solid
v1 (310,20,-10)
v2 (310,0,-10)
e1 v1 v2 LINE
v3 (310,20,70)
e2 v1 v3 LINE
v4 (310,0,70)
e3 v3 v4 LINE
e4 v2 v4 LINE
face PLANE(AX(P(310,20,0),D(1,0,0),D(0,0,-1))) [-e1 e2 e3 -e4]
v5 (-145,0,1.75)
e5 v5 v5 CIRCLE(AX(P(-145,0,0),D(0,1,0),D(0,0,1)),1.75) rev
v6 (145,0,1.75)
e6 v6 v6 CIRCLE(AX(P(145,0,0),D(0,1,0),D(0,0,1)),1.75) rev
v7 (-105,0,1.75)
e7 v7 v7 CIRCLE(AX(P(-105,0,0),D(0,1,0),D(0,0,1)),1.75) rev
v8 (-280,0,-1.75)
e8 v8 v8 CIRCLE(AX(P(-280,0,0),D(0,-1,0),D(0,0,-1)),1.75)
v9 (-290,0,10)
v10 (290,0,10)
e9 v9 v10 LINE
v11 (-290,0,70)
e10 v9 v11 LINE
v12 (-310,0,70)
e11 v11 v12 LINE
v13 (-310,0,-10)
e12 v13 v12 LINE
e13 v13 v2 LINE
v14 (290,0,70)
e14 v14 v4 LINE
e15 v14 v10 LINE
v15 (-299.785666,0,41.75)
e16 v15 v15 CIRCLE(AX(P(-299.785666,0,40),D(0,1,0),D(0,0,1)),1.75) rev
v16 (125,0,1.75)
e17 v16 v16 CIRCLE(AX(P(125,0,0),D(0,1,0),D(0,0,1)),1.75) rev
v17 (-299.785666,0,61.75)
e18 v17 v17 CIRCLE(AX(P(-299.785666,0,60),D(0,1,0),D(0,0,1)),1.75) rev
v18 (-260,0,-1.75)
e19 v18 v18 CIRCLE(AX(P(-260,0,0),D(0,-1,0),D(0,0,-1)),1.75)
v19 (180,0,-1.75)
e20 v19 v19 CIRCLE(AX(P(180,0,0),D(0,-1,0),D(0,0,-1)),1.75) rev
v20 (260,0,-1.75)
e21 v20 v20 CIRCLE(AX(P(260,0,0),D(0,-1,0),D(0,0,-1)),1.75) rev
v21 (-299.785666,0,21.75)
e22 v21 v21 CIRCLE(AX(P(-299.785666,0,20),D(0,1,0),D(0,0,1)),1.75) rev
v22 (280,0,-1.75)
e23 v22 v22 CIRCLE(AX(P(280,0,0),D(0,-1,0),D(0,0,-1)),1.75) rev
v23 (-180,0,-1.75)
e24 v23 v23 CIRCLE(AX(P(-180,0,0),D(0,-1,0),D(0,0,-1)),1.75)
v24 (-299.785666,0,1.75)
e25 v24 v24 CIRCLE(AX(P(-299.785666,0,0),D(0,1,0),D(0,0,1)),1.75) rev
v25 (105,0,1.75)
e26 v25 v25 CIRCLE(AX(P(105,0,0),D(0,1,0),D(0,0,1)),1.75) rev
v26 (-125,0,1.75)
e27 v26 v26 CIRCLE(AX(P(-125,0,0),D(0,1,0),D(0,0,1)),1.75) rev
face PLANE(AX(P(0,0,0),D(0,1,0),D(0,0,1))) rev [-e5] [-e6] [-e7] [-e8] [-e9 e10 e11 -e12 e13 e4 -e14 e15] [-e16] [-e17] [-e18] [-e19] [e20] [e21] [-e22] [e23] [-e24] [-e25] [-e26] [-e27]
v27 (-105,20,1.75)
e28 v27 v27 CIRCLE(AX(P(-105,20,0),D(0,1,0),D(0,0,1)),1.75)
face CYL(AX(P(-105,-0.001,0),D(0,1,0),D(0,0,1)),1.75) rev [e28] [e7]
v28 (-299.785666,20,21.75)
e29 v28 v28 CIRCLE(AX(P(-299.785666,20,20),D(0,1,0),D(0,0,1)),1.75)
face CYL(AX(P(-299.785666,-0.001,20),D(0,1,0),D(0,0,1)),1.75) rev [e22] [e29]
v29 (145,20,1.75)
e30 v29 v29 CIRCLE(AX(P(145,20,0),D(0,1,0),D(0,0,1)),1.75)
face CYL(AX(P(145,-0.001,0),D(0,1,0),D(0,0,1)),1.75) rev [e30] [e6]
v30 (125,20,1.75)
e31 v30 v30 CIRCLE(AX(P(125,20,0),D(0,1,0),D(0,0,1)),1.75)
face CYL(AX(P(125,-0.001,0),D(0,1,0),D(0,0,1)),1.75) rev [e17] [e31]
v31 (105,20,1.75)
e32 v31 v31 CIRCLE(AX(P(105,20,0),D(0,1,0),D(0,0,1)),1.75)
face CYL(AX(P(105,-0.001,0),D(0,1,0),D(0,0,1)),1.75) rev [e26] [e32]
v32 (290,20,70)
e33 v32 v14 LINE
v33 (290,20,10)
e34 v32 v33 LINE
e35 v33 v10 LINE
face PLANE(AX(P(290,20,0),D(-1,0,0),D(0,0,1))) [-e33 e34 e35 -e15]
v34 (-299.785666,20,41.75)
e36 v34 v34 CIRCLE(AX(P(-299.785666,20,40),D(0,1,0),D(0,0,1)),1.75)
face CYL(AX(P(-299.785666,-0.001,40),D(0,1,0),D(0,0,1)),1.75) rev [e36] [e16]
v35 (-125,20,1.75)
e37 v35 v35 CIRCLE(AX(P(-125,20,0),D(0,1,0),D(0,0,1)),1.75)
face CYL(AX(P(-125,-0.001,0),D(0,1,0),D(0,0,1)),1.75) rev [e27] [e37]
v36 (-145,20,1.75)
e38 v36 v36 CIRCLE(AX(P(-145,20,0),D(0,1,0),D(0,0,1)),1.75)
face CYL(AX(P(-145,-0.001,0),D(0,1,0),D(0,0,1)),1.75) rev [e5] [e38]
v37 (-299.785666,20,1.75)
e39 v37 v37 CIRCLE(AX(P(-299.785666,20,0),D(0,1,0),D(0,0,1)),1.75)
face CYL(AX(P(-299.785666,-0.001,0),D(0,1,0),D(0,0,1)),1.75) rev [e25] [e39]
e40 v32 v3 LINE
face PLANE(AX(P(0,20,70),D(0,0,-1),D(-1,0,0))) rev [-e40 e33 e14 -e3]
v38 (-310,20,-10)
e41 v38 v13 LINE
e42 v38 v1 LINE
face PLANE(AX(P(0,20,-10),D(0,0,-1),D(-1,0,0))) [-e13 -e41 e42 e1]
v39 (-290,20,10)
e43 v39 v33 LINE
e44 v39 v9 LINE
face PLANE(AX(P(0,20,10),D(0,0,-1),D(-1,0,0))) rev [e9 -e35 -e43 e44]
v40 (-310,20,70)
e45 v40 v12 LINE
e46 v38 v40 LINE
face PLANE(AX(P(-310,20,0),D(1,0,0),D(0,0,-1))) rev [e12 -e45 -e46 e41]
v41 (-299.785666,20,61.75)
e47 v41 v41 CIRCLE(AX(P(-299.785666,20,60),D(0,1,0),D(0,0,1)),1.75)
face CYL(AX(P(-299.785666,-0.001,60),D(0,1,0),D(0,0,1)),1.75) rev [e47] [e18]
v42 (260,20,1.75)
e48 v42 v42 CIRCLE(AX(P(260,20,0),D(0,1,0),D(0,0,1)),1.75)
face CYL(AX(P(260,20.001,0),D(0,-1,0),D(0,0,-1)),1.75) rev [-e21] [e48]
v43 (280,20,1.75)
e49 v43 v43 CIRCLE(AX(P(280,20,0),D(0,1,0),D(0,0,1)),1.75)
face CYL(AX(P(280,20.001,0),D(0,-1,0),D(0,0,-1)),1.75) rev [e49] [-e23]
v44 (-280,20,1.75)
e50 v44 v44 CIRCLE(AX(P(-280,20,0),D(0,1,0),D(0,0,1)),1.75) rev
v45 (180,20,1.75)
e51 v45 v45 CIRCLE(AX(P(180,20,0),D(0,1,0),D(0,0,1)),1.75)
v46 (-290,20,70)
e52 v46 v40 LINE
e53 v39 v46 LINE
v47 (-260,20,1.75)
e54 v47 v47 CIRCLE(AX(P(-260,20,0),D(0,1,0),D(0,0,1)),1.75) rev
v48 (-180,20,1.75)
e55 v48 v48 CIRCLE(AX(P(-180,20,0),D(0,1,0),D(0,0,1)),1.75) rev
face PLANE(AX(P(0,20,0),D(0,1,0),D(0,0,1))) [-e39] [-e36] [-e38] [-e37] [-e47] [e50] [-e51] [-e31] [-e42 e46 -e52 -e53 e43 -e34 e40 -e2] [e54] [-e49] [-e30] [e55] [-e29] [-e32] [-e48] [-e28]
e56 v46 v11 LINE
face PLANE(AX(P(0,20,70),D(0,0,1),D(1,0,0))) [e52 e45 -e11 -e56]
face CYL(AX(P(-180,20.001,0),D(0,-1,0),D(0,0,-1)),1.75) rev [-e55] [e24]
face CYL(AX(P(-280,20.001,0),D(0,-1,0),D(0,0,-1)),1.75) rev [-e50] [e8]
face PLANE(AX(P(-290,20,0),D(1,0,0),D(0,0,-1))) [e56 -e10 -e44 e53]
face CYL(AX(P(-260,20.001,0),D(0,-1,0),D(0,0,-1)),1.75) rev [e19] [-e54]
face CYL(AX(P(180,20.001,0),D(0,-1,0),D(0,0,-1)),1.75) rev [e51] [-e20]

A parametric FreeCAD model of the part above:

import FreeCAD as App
import Part
import Sketcher
Q = App.Units.Quantity

doc = App.newDocument("Part")
params = doc.addObject("Spreadsheet::Sheet", "Params")
for row, (alias, value) in enumerate([
    ("sketch1_width", "580 mm"),
    ("sketch1_width2", "20 mm"),
    ("sketch1_height", "60 mm"),
    ("sketch1_height2", "80 mm"),
    ("pad1_length", "20 mm"),
    ("sketch2_diameter", "3.5 mm"),
    ("sketch3_diameter", "3.5 mm"),
    ("sketch4_diameter", "3.5 mm"),
    ("sketch5_diameter", "3.5 mm"),
    ("sketch6_diameter", "3.5 mm"),
    ("sketch7_diameter", "3.5 mm"),
    ("sketch8_diameter", "3.5 mm"),
    ("sketch9_diameter", "3.5 mm"),
    ("sketch10_diameter", "3.5 mm"),
    ("sketch11_diameter", "3.5 mm"),
    ("sketch12_diameter", "3.5 mm"),
    ("sketch13_diameter", "3.5 mm"),
    ("sketch14_diameter", "3.5 mm"),
    ("sketch15_diameter", "3.5 mm"),
    ("sketch16_diameter", "3.5 mm"),
    ("sketch17_diameter", "3.5 mm"),
], start=1):
    params.set(f"A{row}", alias)
    params.set(f"B{row}", "=" + value)
    params.setAlias(f"B{row}", alias)

body = doc.addObject("PartDesign::Body", "Body")

# Sketch on XZ plane
sketch1 = body.newObject("Sketcher::SketchObject", "Sketch")
sketch1.AttachmentSupport = (doc.getObject("XZ_Plane"), [""])
sketch1.MapMode = "FlatFace"
sketch1.addGeometry(Part.LineSegment(App.Vector(-290, 10, 0), App.Vector(290, 10, 0)), False)
sketch1.addGeometry(Part.LineSegment(App.Vector(290, 10, 0), App.Vector(290, 70, 0)), False)
sketch1.addGeometry(Part.LineSegment(App.Vector(290, 70, 0), App.Vector(310, 70, 0)), False)
sketch1.addGeometry(Part.LineSegment(App.Vector(310, 70, 0), App.Vector(310, -10, 0)), False)
sketch1.addGeometry(Part.LineSegment(App.Vector(310, -10, 0), App.Vector(-310, -10, 0)), False)
sketch1.addGeometry(Part.LineSegment(App.Vector(-310, -10, 0), App.Vector(-310, 70, 0)), False)
sketch1.addGeometry(Part.LineSegment(App.Vector(-310, 70, 0), App.Vector(-290, 70, 0)), False)
sketch1.addGeometry(Part.LineSegment(App.Vector(-290, 70, 0), App.Vector(-290, 10, 0)), False)
sketch1.addConstraint(Sketcher.Constraint("Coincident", 0, 2, 1, 1))
sketch1.addConstraint(Sketcher.Constraint("Coincident", 1, 2, 2, 1))
sketch1.addConstraint(Sketcher.Constraint("Coincident", 2, 2, 3, 1))
sketch1.addConstraint(Sketcher.Constraint("Coincident", 3, 2, 4, 1))
sketch1.addConstraint(Sketcher.Constraint("Coincident", 4, 2, 5, 1))
sketch1.addConstraint(Sketcher.Constraint("Coincident", 5, 2, 6, 1))
sketch1.addConstraint(Sketcher.Constraint("Coincident", 6, 2, 7, 1))
sketch1.addConstraint(Sketcher.Constraint("Coincident", 7, 2, 0, 1))
sketch1.addConstraint(Sketcher.Constraint("Horizontal", 0))
sketch1.addConstraint(Sketcher.Constraint("Vertical", 1))
sketch1.addConstraint(Sketcher.Constraint("Horizontal", 2))
sketch1.addConstraint(Sketcher.Constraint("Vertical", 3))
sketch1.addConstraint(Sketcher.Constraint("Horizontal", 4))
sketch1.addConstraint(Sketcher.Constraint("Vertical", 5))
sketch1.addConstraint(Sketcher.Constraint("Horizontal", 6))
sketch1.addConstraint(Sketcher.Constraint("Vertical", 7))
sketch1.addConstraint(Sketcher.Constraint("Symmetric", 2, 2, 5, 2, -2))
sketch1.addConstraint(Sketcher.Constraint("Equal", 2, 6))
sketch1.addConstraint(Sketcher.Constraint("DistanceX", 0, 1, 0, 2, Q("580 mm")))
sketch1.addConstraint(Sketcher.Constraint("DistanceX", 2, 1, 2, 2, Q("20 mm")))
sketch1.addConstraint(Sketcher.Constraint("DistanceY", 1, 1, 1, 2, Q("60 mm")))
sketch1.addConstraint(Sketcher.Constraint("DistanceY", 3, 2, 3, 1, Q("80 mm")))
sketch1.addConstraint(Sketcher.Constraint("DistanceY", -1, 1, 0, 2, Q("10 mm")))
sketch1.setExpression("Constraints[18]", "Params.sketch1_width")
sketch1.setExpression("Constraints[19]", "Params.sketch1_width2")
sketch1.setExpression("Constraints[20]", "Params.sketch1_height")
sketch1.setExpression("Constraints[21]", "Params.sketch1_height2")
pad1 = body.newObject("PartDesign::Pad", "Pad")
pad1.Profile = sketch1
pad1.setExpression("Length", "Params.pad1_length")
pad1.Reversed = True

# Sketch on XZ plane
sketch2 = body.newObject("Sketcher::SketchObject", "Sketch001")
sketch2.AttachmentSupport = (doc.getObject("XZ_Plane"), [""])
sketch2.MapMode = "FlatFace"
sketch2.AttachmentOffset = App.Placement(App.Vector(0, 0, -20), App.Rotation())
sketch2.addGeometry(Part.Circle(App.Vector(-299.785666, 40, 0), App.Vector(0, 0, 1), 1.75), False)
sketch2.addConstraint(Sketcher.Constraint("Diameter", 0, Q("3.5 mm")))
sketch2.addConstraint(Sketcher.Constraint("DistanceY", -1, 1, 0, 3, Q("40 mm")))
sketch2.addConstraint(Sketcher.Constraint("DistanceX", 0, 3, -1, 1, Q("299.785666 mm")))
sketch2.setExpression("Constraints[0]", "Params.sketch2_diameter")
pocket1 = body.newObject("PartDesign::Pocket", "Pocket")
pocket1.Profile = sketch2
pocket1.Type = "UpToFirst"
pocket1.Reversed = True

# Sketch on XZ plane
sketch3 = body.newObject("Sketcher::SketchObject", "Sketch002")
sketch3.AttachmentSupport = (doc.getObject("XZ_Plane"), [""])
sketch3.MapMode = "FlatFace"
sketch3.AttachmentOffset = App.Placement(App.Vector(0, 0, -20), App.Rotation())
sketch3.addGeometry(Part.Circle(App.Vector(-299.785666, 60, 0), App.Vector(0, 0, 1), 1.75), False)
sketch3.addConstraint(Sketcher.Constraint("Diameter", 0, Q("3.5 mm")))
sketch3.addConstraint(Sketcher.Constraint("DistanceY", -1, 1, 0, 3, Q("60 mm")))
sketch3.addConstraint(Sketcher.Constraint("DistanceX", 0, 3, -1, 1, Q("299.785666 mm")))
sketch3.setExpression("Constraints[0]", "Params.sketch3_diameter")
pocket2 = body.newObject("PartDesign::Pocket", "Pocket001")
pocket2.Profile = sketch3
pocket2.Type = "UpToFirst"
pocket2.Reversed = True

# Sketch on XZ plane
sketch4 = body.newObject("Sketcher::SketchObject", "Sketch003")
sketch4.AttachmentSupport = (doc.getObject("XZ_Plane"), [""])
sketch4.MapMode = "FlatFace"
sketch4.AttachmentOffset = App.Placement(App.Vector(0, 0, -20), App.Rotation())
sketch4.addGeometry(Part.Circle(App.Vector(-299.785666, 20, 0), App.Vector(0, 0, 1), 1.75), False)
sketch4.addConstraint(Sketcher.Constraint("Diameter", 0, Q("3.5 mm")))
sketch4.addConstraint(Sketcher.Constraint("DistanceY", -1, 1, 0, 3, Q("20 mm")))
sketch4.addConstraint(Sketcher.Constraint("DistanceX", 0, 3, -1, 1, Q("299.785666 mm")))
sketch4.setExpression("Constraints[0]", "Params.sketch4_diameter")
pocket3 = body.newObject("PartDesign::Pocket", "Pocket002")
pocket3.Profile = sketch4
pocket3.Type = "UpToFirst"
pocket3.Reversed = True

# Sketch on XZ plane
sketch5 = body.newObject("Sketcher::SketchObject", "Sketch004")
sketch5.AttachmentSupport = (doc.getObject("XZ_Plane"), [""])
sketch5.MapMode = "FlatFace"
sketch5.AttachmentOffset = App.Placement(App.Vector(0, 0, -20), App.Rotation())
sketch5.addGeometry(Part.Circle(App.Vector(-299.785666, 0, 0), App.Vector(0, 0, 1), 1.75), False)
sketch5.addConstraint(Sketcher.Constraint("PointOnObject", 0, 3, -1))
sketch5.addConstraint(Sketcher.Constraint("Diameter", 0, Q("3.5 mm")))
sketch5.addConstraint(Sketcher.Constraint("DistanceX", 0, 3, -1, 1, Q("299.785666 mm")))
sketch5.setExpression("Constraints[1]", "Params.sketch5_diameter")
pocket4 = body.newObject("PartDesign::Pocket", "Pocket003")
pocket4.Profile = sketch5
pocket4.Type = "UpToFirst"
pocket4.Reversed = True

# Sketch on XZ plane
sketch6 = body.newObject("Sketcher::SketchObject", "Sketch005")
sketch6.AttachmentSupport = (doc.getObject("XZ_Plane"), [""])
sketch6.MapMode = "FlatFace"
sketch6.AttachmentOffset = App.Placement(App.Vector(0, 0, -20), App.Rotation())
sketch6.addGeometry(Part.Circle(App.Vector(-125, 0, 0), App.Vector(0, 0, 1), 1.75), False)
sketch6.addConstraint(Sketcher.Constraint("PointOnObject", 0, 3, -1))
sketch6.addConstraint(Sketcher.Constraint("Diameter", 0, Q("3.5 mm")))
sketch6.addConstraint(Sketcher.Constraint("DistanceX", 0, 3, -1, 1, Q("125 mm")))
sketch6.setExpression("Constraints[1]", "Params.sketch6_diameter")
pocket5 = body.newObject("PartDesign::Pocket", "Pocket004")
pocket5.Profile = sketch6
pocket5.Type = "UpToFirst"
pocket5.Reversed = True

# Sketch on XZ plane
sketch7 = body.newObject("Sketcher::SketchObject", "Sketch006")
sketch7.AttachmentSupport = (doc.getObject("XZ_Plane"), [""])
sketch7.MapMode = "FlatFace"
sketch7.AttachmentOffset = App.Placement(App.Vector(0, 0, -20), App.Rotation())
sketch7.addGeometry(Part.Circle(App.Vector(-105, 0, 0), App.Vector(0, 0, 1), 1.75), False)
sketch7.addConstraint(Sketcher.Constraint("PointOnObject", 0, 3, -1))
sketch7.addConstraint(Sketcher.Constraint("Diameter", 0, Q("3.5 mm")))
sketch7.addConstraint(Sketcher.Constraint("DistanceX", 0, 3, -1, 1, Q("105 mm")))
sketch7.setExpression("Constraints[1]", "Params.sketch7_diameter")
pocket6 = body.newObject("PartDesign::Pocket", "Pocket005")
pocket6.Profile = sketch7
pocket6.Type = "UpToFirst"
pocket6.Reversed = True

# Sketch on XZ plane
sketch8 = body.newObject("Sketcher::SketchObject", "Sketch007")
sketch8.AttachmentSupport = (doc.getObject("XZ_Plane"), [""])
sketch8.MapMode = "FlatFace"
sketch8.AttachmentOffset = App.Placement(App.Vector(0, 0, -20), App.Rotation())
sketch8.addGeometry(Part.Circle(App.Vector(-145, 0, 0), App.Vector(0, 0, 1), 1.75), False)
sketch8.addConstraint(Sketcher.Constraint("PointOnObject", 0, 3, -1))
sketch8.addConstraint(Sketcher.Constraint("Diameter", 0, Q("3.5 mm")))
sketch8.addConstraint(Sketcher.Constraint("DistanceX", 0, 3, -1, 1, Q("145 mm")))
sketch8.setExpression("Constraints[1]", "Params.sketch8_diameter")
pocket7 = body.newObject("PartDesign::Pocket", "Pocket006")
pocket7.Profile = sketch8
pocket7.Type = "UpToFirst"
pocket7.Reversed = True

# Sketch on XZ plane
sketch9 = body.newObject("Sketcher::SketchObject", "Sketch008")
sketch9.AttachmentSupport = (doc.getObject("XZ_Plane"), [""])
sketch9.MapMode = "FlatFace"
sketch9.AttachmentOffset = App.Placement(App.Vector(0, 0, -20), App.Rotation())
sketch9.addGeometry(Part.Circle(App.Vector(105, 0, 0), App.Vector(0, 0, 1), 1.75), False)
sketch9.addConstraint(Sketcher.Constraint("PointOnObject", 0, 3, -1))
sketch9.addConstraint(Sketcher.Constraint("Diameter", 0, Q("3.5 mm")))
sketch9.addConstraint(Sketcher.Constraint("DistanceX", -1, 1, 0, 3, Q("105 mm")))
sketch9.setExpression("Constraints[1]", "Params.sketch9_diameter")
pocket8 = body.newObject("PartDesign::Pocket", "Pocket007")
pocket8.Profile = sketch9
pocket8.Type = "UpToFirst"
pocket8.Reversed = True

# Sketch on XZ plane
sketch10 = body.newObject("Sketcher::SketchObject", "Sketch009")
sketch10.AttachmentSupport = (doc.getObject("XZ_Plane"), [""])
sketch10.MapMode = "FlatFace"
sketch10.AttachmentOffset = App.Placement(App.Vector(0, 0, -20), App.Rotation())
sketch10.addGeometry(Part.Circle(App.Vector(125, 0, 0), App.Vector(0, 0, 1), 1.75), False)
sketch10.addConstraint(Sketcher.Constraint("PointOnObject", 0, 3, -1))
sketch10.addConstraint(Sketcher.Constraint("Diameter", 0, Q("3.5 mm")))
sketch10.addConstraint(Sketcher.Constraint("DistanceX", -1, 1, 0, 3, Q("125 mm")))
sketch10.setExpression("Constraints[1]", "Params.sketch10_diameter")
pocket9 = body.newObject("PartDesign::Pocket", "Pocket008")
pocket9.Profile = sketch10
pocket9.Type = "UpToFirst"
pocket9.Reversed = True

# Sketch on XZ plane
sketch11 = body.newObject("Sketcher::SketchObject", "Sketch010")
sketch11.AttachmentSupport = (doc.getObject("XZ_Plane"), [""])
sketch11.MapMode = "FlatFace"
sketch11.AttachmentOffset = App.Placement(App.Vector(0, 0, -20), App.Rotation())
sketch11.addGeometry(Part.Circle(App.Vector(145, 0, 0), App.Vector(0, 0, 1), 1.75), False)
sketch11.addConstraint(Sketcher.Constraint("PointOnObject", 0, 3, -1))
sketch11.addConstraint(Sketcher.Constraint("Diameter", 0, Q("3.5 mm")))
sketch11.addConstraint(Sketcher.Constraint("DistanceX", -1, 1, 0, 3, Q("145 mm")))
sketch11.setExpression("Constraints[1]", "Params.sketch11_diameter")
pocket10 = body.newObject("PartDesign::Pocket", "Pocket009")
pocket10.Profile = sketch11
pocket10.Type = "UpToFirst"
pocket10.Reversed = True

# Sketch on XZ plane
sketch12 = body.newObject("Sketcher::SketchObject", "Sketch011")
sketch12.AttachmentSupport = (doc.getObject("XZ_Plane"), [""])
sketch12.MapMode = "FlatFace"
sketch12.addGeometry(Part.Circle(App.Vector(180, 0, 0), App.Vector(0, 0, 1), 1.75), False)
sketch12.addConstraint(Sketcher.Constraint("PointOnObject", 0, 3, -1))
sketch12.addConstraint(Sketcher.Constraint("Diameter", 0, Q("3.5 mm")))
sketch12.addConstraint(Sketcher.Constraint("DistanceX", -1, 1, 0, 3, Q("180 mm")))
sketch12.setExpression("Constraints[1]", "Params.sketch12_diameter")
pocket11 = body.newObject("PartDesign::Pocket", "Pocket010")
pocket11.Profile = sketch12
pocket11.Type = "UpToFirst"

# Sketch on XZ plane
sketch13 = body.newObject("Sketcher::SketchObject", "Sketch012")
sketch13.AttachmentSupport = (doc.getObject("XZ_Plane"), [""])
sketch13.MapMode = "FlatFace"
sketch13.addGeometry(Part.Circle(App.Vector(280, 0, 0), App.Vector(0, 0, 1), 1.75), False)
sketch13.addConstraint(Sketcher.Constraint("PointOnObject", 0, 3, -1))
sketch13.addConstraint(Sketcher.Constraint("Diameter", 0, Q("3.5 mm")))
sketch13.addConstraint(Sketcher.Constraint("DistanceX", -1, 1, 0, 3, Q("280 mm")))
sketch13.setExpression("Constraints[1]", "Params.sketch13_diameter")
pocket12 = body.newObject("PartDesign::Pocket", "Pocket011")
pocket12.Profile = sketch13
pocket12.Type = "UpToFirst"

# Sketch on XZ plane
sketch14 = body.newObject("Sketcher::SketchObject", "Sketch013")
sketch14.AttachmentSupport = (doc.getObject("XZ_Plane"), [""])
sketch14.MapMode = "FlatFace"
sketch14.addGeometry(Part.Circle(App.Vector(260, 0, 0), App.Vector(0, 0, 1), 1.75), False)
sketch14.addConstraint(Sketcher.Constraint("PointOnObject", 0, 3, -1))
sketch14.addConstraint(Sketcher.Constraint("Diameter", 0, Q("3.5 mm")))
sketch14.addConstraint(Sketcher.Constraint("DistanceX", -1, 1, 0, 3, Q("260 mm")))
sketch14.setExpression("Constraints[1]", "Params.sketch14_diameter")
pocket13 = body.newObject("PartDesign::Pocket", "Pocket012")
pocket13.Profile = sketch14
pocket13.Type = "UpToFirst"

# Sketch on XZ plane
sketch15 = body.newObject("Sketcher::SketchObject", "Sketch014")
sketch15.AttachmentSupport = (doc.getObject("XZ_Plane"), [""])
sketch15.MapMode = "FlatFace"
sketch15.addGeometry(Part.Circle(App.Vector(-280, 0, 0), App.Vector(0, 0, 1), 1.75), False)
sketch15.addConstraint(Sketcher.Constraint("PointOnObject", 0, 3, -1))
sketch15.addConstraint(Sketcher.Constraint("Diameter", 0, Q("3.5 mm")))
sketch15.addConstraint(Sketcher.Constraint("DistanceX", 0, 3, -1, 1, Q("280 mm")))
sketch15.setExpression("Constraints[1]", "Params.sketch15_diameter")
pocket14 = body.newObject("PartDesign::Pocket", "Pocket013")
pocket14.Profile = sketch15
pocket14.Type = "UpToFirst"

# Sketch on XZ plane
sketch16 = body.newObject("Sketcher::SketchObject", "Sketch015")
sketch16.AttachmentSupport = (doc.getObject("XZ_Plane"), [""])
sketch16.MapMode = "FlatFace"
sketch16.addGeometry(Part.Circle(App.Vector(-260, 0, 0), App.Vector(0, 0, 1), 1.75), False)
sketch16.addConstraint(Sketcher.Constraint("PointOnObject", 0, 3, -1))
sketch16.addConstraint(Sketcher.Constraint("Diameter", 0, Q("3.5 mm")))
sketch16.addConstraint(Sketcher.Constraint("DistanceX", 0, 3, -1, 1, Q("260 mm")))
sketch16.setExpression("Constraints[1]", "Params.sketch16_diameter")
pocket15 = body.newObject("PartDesign::Pocket", "Pocket014")
pocket15.Profile = sketch16
pocket15.Type = "UpToFirst"

# Sketch on XZ plane
sketch17 = body.newObject("Sketcher::SketchObject", "Sketch016")
sketch17.AttachmentSupport = (doc.getObject("XZ_Plane"), [""])
sketch17.MapMode = "FlatFace"
sketch17.addGeometry(Part.Circle(App.Vector(-180, 0, 0), App.Vector(0, 0, 1), 1.75), False)
sketch17.addConstraint(Sketcher.Constraint("PointOnObject", 0, 3, -1))
sketch17.addConstraint(Sketcher.Constraint("Diameter", 0, Q("3.5 mm")))
sketch17.addConstraint(Sketcher.Constraint("DistanceX", 0, 3, -1, 1, Q("180 mm")))
sketch17.setExpression("Constraints[1]", "Params.sketch17_diameter")
pocket16 = body.newObject("PartDesign::Pocket", "Pocket015")
pocket16.Profile = sketch17
pocket16.Type = "UpToFirst"

doc.recompute()
